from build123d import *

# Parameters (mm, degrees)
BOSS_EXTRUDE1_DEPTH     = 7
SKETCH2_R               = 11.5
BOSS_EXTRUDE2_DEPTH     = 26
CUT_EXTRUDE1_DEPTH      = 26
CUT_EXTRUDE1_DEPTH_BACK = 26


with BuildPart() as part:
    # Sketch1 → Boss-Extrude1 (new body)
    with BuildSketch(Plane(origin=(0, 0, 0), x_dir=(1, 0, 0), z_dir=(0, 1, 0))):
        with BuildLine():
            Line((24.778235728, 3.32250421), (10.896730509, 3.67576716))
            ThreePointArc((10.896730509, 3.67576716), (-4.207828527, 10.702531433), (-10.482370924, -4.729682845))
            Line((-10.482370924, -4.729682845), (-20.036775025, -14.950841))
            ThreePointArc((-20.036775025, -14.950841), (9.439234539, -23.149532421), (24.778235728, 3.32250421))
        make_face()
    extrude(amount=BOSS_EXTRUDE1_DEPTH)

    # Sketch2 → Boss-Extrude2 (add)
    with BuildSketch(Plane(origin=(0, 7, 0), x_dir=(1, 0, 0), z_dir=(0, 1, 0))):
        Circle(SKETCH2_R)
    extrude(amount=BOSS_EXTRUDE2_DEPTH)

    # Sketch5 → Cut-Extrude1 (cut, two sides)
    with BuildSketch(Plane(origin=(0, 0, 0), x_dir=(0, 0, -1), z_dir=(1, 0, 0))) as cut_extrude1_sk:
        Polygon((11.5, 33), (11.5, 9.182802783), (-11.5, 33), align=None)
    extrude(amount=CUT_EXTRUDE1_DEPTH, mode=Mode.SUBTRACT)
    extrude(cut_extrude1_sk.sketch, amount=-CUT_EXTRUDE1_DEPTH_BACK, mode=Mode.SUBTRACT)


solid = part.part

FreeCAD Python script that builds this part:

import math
import FreeCAD as App
import Part
import Sketcher
from FreeCAD import Vector
Q = App.Units.Quantity


def add_polygon(sketch, points):
    """Adds a closed chain of lines whose ends are joined by coincident constraints."""
    first, n = sketch.GeometryCount, len(points)
    for a, b in zip(points, points[1:] + points[:1]):
        sketch.addGeometry(Part.LineSegment(App.Vector(*a, 0), App.Vector(*b, 0)), False)
    for i in range(n):
        sketch.addConstraint(Sketcher.Constraint("Coincident", first + i, 2, first + (i + 1) % n, 1))

doc = App.newDocument("Part")
body = doc.addObject("PartDesign::Body", "Body")

sketch1 = body.newObject("Sketcher::SketchObject", "Sketch")
sketch1.AttachmentSupport = (doc.getObject("XZ_Plane"), [""])
sketch1.MapMode = "FlatFace"
sketch1.addGeometry([
    Part.LineSegment(Vector(25, -3, 0), Vector(11, -4, 0)),
    Part.ArcOfCircle(Part.Circle(Vector(0, 0, 0), Vector(0, 0, 1), 12), math.radians(156), math.radians(341)),
    Part.LineSegment(Vector(-10, 5, 0), Vector(-20, 15, 0)),
    Part.ArcOfCircle(Part.Circle(Vector(0, 0, 0), Vector(0, 0, 1), 25), math.radians(-8), math.radians(143)),
], False)
sketch1.addConstraint([
    Sketcher.Constraint("Coincident", 0, 2, 1, 2),
    Sketcher.Constraint("Coincident", 1, 1, 2, 1),
    Sketcher.Constraint("Coincident", 2, 2, 3, 2),
    Sketcher.Constraint("Coincident", 3, 1, 0, 1),
    Sketcher.Constraint("Coincident", 1, 3, -1, 1),
    Sketcher.Constraint("Coincident", 3, 3, -1, 1),
    Sketcher.Constraint("Radius", 3, 25.0),
    Sketcher.Constraint("Radius", 1, 11.5),
    Sketcher.Constraint("Distance", 0, 13.885999),
    Sketcher.Constraint("DistanceX", 1, 1, 0, 2, 21.379101),
    Sketcher.Constraint("Distance", 2, 13.99138),
    Sketcher.Constraint("DistanceX", -1, 1, 0, 2, 10.896731),
])
pad1 = body.newObject("PartDesign::Pad", "Pad")
pad1.Profile = sketch1
pad1.Length = 7
pad1.Reversed = True

sketch2 = body.newObject("Sketcher::SketchObject", "Sketch001")
sketch2.AttachmentSupport = (doc.getObject("XZ_Plane"), [""])
sketch2.MapMode = "FlatFace"
sketch2.AttachmentOffset = App.Placement(Vector(0, 0, -7), App.Rotation())
sketch2.addGeometry(Part.Circle(Vector(0, 0, 0), Vector(0, 0, 1), 12), False)
sketch2.addConstraint([
    Sketcher.Constraint("Coincident", 0, 3, -1, 1),
    Sketcher.Constraint("Diameter", 0, 23.0),
])
pad2 = body.newObject("PartDesign::Pad", "Pad001")
pad2.Profile = sketch2
pad2.Length = 26
pad2.Reversed = True

sketch3 = body.newObject("Sketcher::SketchObject", "Sketch002")
sketch3.AttachmentSupport = (doc.getObject("YZ_Plane"), [""])
sketch3.MapMode = "FlatFace"
add_polygon(sketch3, [(9, -12), (33, -12), (33, 12)])
sketch3.addConstraint([
    Sketcher.Constraint("Horizontal", 0),
    Sketcher.Constraint("Vertical", 1),
    Sketcher.Constraint("DistanceY", 1, 1, 1, 2, 23.0),
    Sketcher.Constraint("Angle", 2, Q("-136 deg")),
    Sketcher.Constraint("DistanceX", -1, 1, 0, 2, 33.0),
    Sketcher.Constraint("DistanceY", 0, 2, -1, 1, 11.5),
])
pocket1 = body.newObject("PartDesign::Pocket", "Pocket")
pocket1.Profile = sketch3
pocket1.Type = "ThroughAll"
pocket1.Midplane = True

doc.recompute()
